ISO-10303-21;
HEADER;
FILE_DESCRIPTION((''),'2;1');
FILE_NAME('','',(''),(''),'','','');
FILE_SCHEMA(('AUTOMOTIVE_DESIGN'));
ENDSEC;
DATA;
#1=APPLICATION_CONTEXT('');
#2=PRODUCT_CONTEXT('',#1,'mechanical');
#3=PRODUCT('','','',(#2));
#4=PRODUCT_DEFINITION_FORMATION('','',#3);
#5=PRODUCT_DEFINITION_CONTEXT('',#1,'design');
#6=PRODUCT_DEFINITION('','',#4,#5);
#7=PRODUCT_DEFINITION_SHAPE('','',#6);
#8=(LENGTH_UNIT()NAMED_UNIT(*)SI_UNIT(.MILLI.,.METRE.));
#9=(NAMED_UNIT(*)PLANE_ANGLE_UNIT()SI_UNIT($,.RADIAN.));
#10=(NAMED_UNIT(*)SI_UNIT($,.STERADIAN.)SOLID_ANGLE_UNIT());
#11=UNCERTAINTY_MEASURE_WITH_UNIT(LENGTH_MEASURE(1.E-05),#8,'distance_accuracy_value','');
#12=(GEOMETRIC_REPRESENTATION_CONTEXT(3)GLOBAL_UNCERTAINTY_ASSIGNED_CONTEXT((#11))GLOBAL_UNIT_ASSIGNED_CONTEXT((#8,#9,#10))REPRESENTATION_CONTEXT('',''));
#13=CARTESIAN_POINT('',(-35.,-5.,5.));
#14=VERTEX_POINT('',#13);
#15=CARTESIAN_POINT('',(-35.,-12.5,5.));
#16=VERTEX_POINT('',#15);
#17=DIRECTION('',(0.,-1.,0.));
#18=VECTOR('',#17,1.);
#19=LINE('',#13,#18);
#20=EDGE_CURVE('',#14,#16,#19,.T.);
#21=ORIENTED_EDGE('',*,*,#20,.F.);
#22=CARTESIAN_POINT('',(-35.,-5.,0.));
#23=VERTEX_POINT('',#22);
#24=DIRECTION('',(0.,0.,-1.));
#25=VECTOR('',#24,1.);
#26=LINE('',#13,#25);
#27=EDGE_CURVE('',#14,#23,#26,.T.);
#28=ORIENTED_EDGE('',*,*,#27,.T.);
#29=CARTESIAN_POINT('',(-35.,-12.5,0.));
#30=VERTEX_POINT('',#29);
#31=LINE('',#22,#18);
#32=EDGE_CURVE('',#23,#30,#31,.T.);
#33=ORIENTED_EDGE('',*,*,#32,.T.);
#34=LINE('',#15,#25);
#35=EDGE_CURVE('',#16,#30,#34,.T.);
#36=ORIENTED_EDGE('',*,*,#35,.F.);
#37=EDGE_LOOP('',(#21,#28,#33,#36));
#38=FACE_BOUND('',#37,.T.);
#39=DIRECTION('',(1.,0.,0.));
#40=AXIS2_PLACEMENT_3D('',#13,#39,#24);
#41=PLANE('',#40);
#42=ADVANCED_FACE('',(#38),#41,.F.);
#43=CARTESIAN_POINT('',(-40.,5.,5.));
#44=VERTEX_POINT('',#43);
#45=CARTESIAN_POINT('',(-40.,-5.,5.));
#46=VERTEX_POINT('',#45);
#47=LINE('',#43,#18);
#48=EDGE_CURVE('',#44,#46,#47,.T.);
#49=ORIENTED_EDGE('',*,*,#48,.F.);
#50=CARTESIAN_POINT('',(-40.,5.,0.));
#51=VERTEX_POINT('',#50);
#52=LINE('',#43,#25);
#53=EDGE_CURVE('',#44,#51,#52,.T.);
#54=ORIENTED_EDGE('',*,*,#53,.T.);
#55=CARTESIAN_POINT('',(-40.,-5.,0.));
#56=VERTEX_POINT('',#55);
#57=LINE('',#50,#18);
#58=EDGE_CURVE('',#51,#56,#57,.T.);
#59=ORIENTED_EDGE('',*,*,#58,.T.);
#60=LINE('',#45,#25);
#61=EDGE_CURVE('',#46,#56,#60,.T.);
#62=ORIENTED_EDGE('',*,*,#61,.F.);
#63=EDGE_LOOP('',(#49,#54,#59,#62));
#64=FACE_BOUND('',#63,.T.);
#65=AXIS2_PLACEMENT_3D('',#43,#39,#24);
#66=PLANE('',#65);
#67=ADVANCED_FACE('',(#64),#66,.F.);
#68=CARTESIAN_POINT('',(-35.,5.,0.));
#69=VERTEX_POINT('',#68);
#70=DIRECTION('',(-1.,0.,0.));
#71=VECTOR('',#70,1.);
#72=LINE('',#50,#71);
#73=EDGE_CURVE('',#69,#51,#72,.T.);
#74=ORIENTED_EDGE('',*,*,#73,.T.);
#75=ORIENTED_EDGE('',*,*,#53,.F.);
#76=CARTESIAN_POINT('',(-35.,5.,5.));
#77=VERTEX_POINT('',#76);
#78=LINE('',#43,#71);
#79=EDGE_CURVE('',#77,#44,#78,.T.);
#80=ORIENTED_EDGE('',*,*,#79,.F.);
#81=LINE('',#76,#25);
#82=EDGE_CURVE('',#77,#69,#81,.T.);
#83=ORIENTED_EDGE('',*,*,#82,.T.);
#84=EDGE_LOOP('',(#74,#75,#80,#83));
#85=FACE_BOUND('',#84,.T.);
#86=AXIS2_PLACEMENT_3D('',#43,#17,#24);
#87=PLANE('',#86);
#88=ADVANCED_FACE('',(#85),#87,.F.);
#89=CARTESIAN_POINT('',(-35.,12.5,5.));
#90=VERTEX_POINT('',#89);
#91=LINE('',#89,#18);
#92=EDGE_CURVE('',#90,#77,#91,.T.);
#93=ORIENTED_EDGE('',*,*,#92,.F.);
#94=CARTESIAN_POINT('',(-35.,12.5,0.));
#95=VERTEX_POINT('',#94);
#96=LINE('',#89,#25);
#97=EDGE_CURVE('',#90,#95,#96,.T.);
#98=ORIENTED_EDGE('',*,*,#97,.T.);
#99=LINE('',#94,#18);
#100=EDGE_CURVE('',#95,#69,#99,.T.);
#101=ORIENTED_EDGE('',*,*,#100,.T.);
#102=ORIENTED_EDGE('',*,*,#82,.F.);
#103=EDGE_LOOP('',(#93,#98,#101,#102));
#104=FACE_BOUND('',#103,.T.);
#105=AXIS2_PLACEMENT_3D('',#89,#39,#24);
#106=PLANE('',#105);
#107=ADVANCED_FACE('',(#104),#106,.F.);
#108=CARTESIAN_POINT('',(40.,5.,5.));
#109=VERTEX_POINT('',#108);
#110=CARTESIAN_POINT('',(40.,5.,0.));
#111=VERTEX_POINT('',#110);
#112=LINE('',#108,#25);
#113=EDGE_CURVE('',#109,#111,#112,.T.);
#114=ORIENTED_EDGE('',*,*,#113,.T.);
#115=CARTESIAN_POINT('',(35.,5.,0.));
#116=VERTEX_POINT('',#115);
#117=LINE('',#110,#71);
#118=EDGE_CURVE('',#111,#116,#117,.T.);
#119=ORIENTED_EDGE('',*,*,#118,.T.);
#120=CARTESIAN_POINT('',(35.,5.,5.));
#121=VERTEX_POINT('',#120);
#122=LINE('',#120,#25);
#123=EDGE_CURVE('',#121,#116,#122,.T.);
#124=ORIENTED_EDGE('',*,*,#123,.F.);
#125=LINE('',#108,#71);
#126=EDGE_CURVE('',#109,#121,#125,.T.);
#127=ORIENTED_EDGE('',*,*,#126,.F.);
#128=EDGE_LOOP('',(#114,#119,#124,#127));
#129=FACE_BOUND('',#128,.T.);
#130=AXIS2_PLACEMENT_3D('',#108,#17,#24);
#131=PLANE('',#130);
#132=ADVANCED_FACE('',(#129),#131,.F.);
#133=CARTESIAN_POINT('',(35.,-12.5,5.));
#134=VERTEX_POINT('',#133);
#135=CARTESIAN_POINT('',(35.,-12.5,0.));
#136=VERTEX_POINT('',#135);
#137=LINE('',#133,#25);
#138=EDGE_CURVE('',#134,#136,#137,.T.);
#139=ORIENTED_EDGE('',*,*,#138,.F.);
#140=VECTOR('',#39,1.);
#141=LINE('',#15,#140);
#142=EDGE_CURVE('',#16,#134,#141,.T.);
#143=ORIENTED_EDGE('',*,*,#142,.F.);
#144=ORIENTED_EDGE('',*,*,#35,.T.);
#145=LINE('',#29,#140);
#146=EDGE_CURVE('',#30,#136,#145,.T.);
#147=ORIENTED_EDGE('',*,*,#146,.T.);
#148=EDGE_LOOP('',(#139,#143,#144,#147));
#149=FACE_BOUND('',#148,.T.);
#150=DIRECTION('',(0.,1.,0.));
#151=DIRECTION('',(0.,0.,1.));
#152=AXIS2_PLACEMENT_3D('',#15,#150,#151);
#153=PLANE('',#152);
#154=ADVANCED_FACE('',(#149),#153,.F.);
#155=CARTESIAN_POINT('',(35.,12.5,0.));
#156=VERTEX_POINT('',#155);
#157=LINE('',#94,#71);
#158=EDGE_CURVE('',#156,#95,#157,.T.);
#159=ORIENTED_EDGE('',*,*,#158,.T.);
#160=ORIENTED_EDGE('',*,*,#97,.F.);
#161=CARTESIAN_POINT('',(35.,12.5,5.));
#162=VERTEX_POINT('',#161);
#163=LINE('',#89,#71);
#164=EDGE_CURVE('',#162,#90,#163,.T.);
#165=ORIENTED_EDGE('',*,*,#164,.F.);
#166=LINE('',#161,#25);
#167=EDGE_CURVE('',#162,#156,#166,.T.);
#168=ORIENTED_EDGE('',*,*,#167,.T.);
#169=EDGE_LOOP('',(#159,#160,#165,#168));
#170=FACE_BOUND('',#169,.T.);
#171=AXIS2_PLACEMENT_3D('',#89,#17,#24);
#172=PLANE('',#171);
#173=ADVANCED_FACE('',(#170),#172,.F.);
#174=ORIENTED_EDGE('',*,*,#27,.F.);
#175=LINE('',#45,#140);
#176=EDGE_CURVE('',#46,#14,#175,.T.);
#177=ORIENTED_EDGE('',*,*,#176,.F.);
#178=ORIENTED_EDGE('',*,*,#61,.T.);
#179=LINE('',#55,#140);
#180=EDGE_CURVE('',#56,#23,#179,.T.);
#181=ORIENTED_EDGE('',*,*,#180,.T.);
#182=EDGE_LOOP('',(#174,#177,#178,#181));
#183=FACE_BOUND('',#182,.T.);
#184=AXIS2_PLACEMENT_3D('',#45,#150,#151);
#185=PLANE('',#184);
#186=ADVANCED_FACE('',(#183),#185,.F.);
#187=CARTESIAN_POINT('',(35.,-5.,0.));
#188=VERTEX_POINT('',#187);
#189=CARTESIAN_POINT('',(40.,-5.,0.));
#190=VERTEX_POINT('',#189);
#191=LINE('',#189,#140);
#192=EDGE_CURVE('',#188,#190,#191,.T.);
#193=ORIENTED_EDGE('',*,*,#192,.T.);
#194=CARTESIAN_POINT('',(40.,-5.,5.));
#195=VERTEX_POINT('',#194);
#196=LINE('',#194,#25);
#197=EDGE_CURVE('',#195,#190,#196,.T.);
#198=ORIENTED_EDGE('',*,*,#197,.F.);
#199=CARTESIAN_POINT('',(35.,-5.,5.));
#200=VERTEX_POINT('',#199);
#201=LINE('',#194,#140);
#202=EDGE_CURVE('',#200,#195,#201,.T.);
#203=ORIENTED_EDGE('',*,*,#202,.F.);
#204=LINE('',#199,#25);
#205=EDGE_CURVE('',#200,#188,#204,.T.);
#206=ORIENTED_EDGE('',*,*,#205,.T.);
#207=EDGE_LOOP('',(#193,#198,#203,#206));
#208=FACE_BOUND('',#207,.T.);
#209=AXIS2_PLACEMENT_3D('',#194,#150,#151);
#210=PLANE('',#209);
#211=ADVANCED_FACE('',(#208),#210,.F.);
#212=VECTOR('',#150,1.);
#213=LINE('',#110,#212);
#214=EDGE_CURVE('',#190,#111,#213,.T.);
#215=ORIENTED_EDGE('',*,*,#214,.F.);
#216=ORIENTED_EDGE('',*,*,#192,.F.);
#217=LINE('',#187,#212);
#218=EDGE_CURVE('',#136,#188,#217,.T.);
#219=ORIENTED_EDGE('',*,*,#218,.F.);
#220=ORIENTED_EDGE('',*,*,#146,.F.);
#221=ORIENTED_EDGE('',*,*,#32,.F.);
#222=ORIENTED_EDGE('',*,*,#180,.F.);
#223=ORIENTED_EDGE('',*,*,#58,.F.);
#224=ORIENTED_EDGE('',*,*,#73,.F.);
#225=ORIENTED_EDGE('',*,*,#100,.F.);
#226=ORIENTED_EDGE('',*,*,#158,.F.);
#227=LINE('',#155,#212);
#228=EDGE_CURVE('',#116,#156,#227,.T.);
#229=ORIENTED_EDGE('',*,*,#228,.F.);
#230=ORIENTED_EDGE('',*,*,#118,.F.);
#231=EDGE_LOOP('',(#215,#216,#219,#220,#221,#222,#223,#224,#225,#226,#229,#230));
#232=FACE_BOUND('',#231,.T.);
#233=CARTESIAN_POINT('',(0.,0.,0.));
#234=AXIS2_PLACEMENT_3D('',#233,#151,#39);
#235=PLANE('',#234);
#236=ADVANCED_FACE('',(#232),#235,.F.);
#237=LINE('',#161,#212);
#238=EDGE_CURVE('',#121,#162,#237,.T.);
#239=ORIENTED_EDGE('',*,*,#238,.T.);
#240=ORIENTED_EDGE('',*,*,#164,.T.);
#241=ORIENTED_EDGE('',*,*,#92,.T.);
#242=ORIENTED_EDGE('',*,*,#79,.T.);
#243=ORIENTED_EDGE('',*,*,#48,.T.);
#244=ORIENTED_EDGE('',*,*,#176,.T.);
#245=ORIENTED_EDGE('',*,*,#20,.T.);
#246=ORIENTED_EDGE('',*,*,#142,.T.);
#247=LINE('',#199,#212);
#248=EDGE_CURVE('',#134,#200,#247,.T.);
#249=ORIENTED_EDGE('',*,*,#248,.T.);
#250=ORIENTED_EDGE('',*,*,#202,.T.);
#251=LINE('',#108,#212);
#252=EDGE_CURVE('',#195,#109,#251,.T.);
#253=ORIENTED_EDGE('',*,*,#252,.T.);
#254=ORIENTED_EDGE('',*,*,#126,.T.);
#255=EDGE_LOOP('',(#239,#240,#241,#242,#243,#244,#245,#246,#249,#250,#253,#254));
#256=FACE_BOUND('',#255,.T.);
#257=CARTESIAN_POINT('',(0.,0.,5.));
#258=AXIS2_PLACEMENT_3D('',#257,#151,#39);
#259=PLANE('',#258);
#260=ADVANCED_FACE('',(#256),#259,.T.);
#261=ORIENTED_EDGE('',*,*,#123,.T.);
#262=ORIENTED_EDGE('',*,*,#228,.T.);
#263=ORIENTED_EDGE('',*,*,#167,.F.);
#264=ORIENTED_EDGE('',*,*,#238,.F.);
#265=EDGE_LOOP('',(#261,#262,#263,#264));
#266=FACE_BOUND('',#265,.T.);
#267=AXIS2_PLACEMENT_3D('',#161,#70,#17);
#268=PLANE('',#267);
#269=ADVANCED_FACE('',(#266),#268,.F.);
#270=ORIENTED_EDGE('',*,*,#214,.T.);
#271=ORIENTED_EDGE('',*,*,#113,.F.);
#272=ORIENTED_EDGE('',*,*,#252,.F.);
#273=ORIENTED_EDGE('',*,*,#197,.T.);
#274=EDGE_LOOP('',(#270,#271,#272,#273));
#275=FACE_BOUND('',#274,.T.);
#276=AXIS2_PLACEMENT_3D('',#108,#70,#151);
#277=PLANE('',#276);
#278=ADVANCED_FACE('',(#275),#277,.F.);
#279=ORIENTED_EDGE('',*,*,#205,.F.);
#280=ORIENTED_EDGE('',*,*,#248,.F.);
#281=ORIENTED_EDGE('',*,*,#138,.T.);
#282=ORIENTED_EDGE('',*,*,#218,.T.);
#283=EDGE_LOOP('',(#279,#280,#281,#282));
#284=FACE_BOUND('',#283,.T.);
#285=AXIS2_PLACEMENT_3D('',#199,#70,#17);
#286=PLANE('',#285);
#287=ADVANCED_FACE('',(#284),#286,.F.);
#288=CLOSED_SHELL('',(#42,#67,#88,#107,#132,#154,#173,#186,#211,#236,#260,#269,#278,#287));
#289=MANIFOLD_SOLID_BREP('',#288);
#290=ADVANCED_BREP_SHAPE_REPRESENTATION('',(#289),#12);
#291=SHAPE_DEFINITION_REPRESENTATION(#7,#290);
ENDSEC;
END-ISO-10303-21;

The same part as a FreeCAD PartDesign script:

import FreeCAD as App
import Part
import Sketcher
from FreeCAD import Vector
Q = App.Units.Quantity

doc = App.newDocument("Part")
body = doc.addObject("PartDesign::Body", "Body")

sketch1 = body.newObject("Sketcher::SketchObject", "Sketch")
sketch1.AttachmentSupport = (doc.getObject("XY_Plane"), [""])
sketch1.MapMode = "FlatFace"
sketch1.addGeometry([
    Part.LineSegment(Vector(-40, 5, 0), Vector(-40, -5, 0)),
    Part.LineSegment(Vector(-40, -5, 0), Vector(-35, -5, 0)),
    Part.LineSegment(Vector(-35, -5, 0), Vector(-35, -12.5, 0)),
    Part.LineSegment(Vector(-35, -12.5, 0), Vector(35, -12.5, 0)),
    Part.LineSegment(Vector(35, -12.5, 0), Vector(35, -5, 0)),
    Part.LineSegment(Vector(35, -5, 0), Vector(40, -5, 0)),
    Part.LineSegment(Vector(40, -5, 0), Vector(40, 5, 0)),
    Part.LineSegment(Vector(40, 5, 0), Vector(35, 5, 0)),
    Part.LineSegment(Vector(35, 5, 0), Vector(35, 12.5, 0)),
    Part.LineSegment(Vector(35, 12.5, 0), Vector(-35, 12.5, 0)),
    Part.LineSegment(Vector(-35, 12.5, 0), Vector(-35, 5, 0)),
    Part.LineSegment(Vector(-35, 5, 0), Vector(-40, 5, 0)),
], False)
sketch1.addConstraint([
    Sketcher.Constraint("Coincident", 0, 2, 1, 1),
    Sketcher.Constraint("Coincident", 1, 2, 2, 1),
    Sketcher.Constraint("Coincident", 2, 2, 3, 1),
    Sketcher.Constraint("Coincident", 3, 2, 4, 1),
    Sketcher.Constraint("Coincident", 4, 2, 5, 1),
    Sketcher.Constraint("Coincident", 5, 2, 6, 1),
    Sketcher.Constraint("Coincident", 6, 2, 7, 1),
    Sketcher.Constraint("Coincident", 7, 2, 8, 1),
    Sketcher.Constraint("Coincident", 8, 2, 9, 1),
    Sketcher.Constraint("Coincident", 9, 2, 10, 1),
    Sketcher.Constraint("Coincident", 10, 2, 11, 1),
    Sketcher.Constraint("Coincident", 11, 2, 0, 1),
    Sketcher.Constraint("Vertical", 0),
    Sketcher.Constraint("Horizontal", 1),
    Sketcher.Constraint("Vertical", 2),
    Sketcher.Constraint("Horizontal", 3),
    Sketcher.Constraint("Vertical", 4),
    Sketcher.Constraint("Horizontal", 5),
    Sketcher.Constraint("Vertical", 6),
    Sketcher.Constraint("Horizontal", 7),
    Sketcher.Constraint("Vertical", 8),
    Sketcher.Constraint("Horizontal", 9),
    Sketcher.Constraint("Vertical", 10),
    Sketcher.Constraint("Horizontal", 11),
    Sketcher.Constraint("Symmetric", 0, 2, 6, 2, -1, 1),
    Sketcher.Constraint("Symmetric", 2, 2, 8, 2, -1, 1),
    Sketcher.Constraint("Symmetric", 4, 2, 10, 2, -1, 1),
    Sketcher.Constraint("Symmetric", 1, 2, 4, 2, -2),
    Sketcher.Constraint("DistanceX", 1, 1, 1, 2, Q("5 mm")),
    Sketcher.Constraint("DistanceX", 3, 1, 3, 2, Q("70 mm")),
    Sketcher.Constraint("DistanceY", 0, 2, 0, 1, Q("10 mm")),
    Sketcher.Constraint("DistanceY", 2, 2, 2, 1, Q("7.5 mm")),
])
pad1 = body.newObject("PartDesign::Pad", "Pad")
pad1.Profile = sketch1
pad1.Length = 5

doc.recompute()
